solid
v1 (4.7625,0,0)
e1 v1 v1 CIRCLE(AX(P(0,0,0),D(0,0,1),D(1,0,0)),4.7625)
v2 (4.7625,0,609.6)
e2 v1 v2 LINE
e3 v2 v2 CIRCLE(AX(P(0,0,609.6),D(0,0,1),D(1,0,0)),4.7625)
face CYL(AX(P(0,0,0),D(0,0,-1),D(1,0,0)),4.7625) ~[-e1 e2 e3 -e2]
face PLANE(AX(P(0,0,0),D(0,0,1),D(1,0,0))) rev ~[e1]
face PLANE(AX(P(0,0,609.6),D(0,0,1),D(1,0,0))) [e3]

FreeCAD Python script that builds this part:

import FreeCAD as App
import Part
import Sketcher

V = App.Vector
Q = App.Units.Quantity

doc = App.newDocument("Part")
params = doc.addObject("Spreadsheet::Sheet", "Params")
for row, (alias, value) in enumerate([
    ("sketch1_diameter", "0.375 in"),
    ("pad1_length", "24 in"),
], start=1):
    params.set(f"A{row}", alias)
    params.set(f"B{row}", "=" + value)
    params.setAlias(f"B{row}", alias)

body = doc.addObject("PartDesign::Body", "Body")

# Sketch on XY plane
sketch1 = doc.addObject("Sketcher::SketchObject", "Sketch")
body.addObject(sketch1)
sketch1.AttachmentSupport = (doc.XY_Plane, [""])
sketch1.MapMode = "FlatFace"
sketch1.addGeometry(Part.Circle(V(0, 0, 0), V(0, 0, 1), 4.8), False)
sketch1.addConstraint([
    Sketcher.Constraint("Coincident", 0, 3, -1, 1),
    Sketcher.Constraint("Diameter", 0, Q("0.375 in")),
])
sketch1.setExpression("Constraints[1]", "Params.sketch1_diameter")
pad1 = doc.addObject("PartDesign::Pad", "Pad")
body.addObject(pad1)
pad1.Profile = sketch1
pad1.setExpression("Length", "Params.pad1_length")

doc.recompute()
